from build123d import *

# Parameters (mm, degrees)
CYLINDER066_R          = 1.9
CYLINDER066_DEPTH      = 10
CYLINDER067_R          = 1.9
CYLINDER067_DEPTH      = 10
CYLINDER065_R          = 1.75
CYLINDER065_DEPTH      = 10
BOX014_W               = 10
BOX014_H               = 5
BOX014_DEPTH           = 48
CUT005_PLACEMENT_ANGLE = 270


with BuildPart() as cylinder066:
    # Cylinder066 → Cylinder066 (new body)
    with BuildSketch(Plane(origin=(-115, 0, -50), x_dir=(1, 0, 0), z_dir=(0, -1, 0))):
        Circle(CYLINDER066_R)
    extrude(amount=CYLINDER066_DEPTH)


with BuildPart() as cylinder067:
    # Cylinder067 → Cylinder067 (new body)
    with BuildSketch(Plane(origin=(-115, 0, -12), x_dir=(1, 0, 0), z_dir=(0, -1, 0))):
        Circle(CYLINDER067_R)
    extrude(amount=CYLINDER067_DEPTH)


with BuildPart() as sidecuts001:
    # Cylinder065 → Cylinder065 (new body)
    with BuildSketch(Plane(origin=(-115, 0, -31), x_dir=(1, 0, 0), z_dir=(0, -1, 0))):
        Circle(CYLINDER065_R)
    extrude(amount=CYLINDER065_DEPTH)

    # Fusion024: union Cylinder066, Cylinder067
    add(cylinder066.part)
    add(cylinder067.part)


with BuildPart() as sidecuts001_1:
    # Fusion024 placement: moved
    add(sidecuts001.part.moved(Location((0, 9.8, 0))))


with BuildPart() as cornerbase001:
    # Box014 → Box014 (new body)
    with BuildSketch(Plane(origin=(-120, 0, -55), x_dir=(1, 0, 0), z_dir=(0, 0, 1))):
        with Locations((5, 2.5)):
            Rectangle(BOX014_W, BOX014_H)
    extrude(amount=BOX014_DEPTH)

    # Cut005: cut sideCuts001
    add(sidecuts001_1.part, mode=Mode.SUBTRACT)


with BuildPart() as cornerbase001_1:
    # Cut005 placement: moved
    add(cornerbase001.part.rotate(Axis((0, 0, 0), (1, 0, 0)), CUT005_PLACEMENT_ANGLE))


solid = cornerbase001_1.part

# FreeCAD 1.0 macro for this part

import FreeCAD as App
import Part
import Sketcher

V = App.Vector

doc = App.newDocument("Part")
body = doc.addObject("PartDesign::Body", "Body")

# Sketch on XZ plane
sketch1 = body.newObject("Sketcher::SketchObject", "Sketch")
sketch1.AttachmentSupport = (doc.getObject("XZ_Plane"), [""])
sketch1.MapMode = "FlatFace"
sketch1.addGeometry(Part.Circle(V(-115, -50, 0), V(0, 0, 1), 1.9), False)
sketch1.addConstraint([
    Sketcher.Constraint("Diameter", 0, 3.8),
    Sketcher.Constraint("DistanceX", 0, 3, -1, 1, 115.0),
    Sketcher.Constraint("DistanceY", 0, 3, -1, 1, 50.0),
])
pad1 = body.newObject("PartDesign::Pad", "Pad")
pad1.Profile = sketch1
pad1.Length = 10
body2 = doc.addObject("PartDesign::Body", "Body001")

# Sketch on XZ plane
sketch2 = body2.newObject("Sketcher::SketchObject", "Sketch001")
sketch2.AttachmentSupport = (doc.getObject("XZ_Plane001"), [""])
sketch2.MapMode = "FlatFace"
sketch2.addGeometry(Part.Circle(V(-115, -12, 0), V(0, 0, 1), 1.9), False)
sketch2.addConstraint([
    Sketcher.Constraint("Diameter", 0, 3.8),
    Sketcher.Constraint("DistanceX", 0, 3, -1, 1, 115.0),
    Sketcher.Constraint("DistanceY", 0, 3, -1, 1, 12.0),
])
pad2 = body2.newObject("PartDesign::Pad", "Pad001")
pad2.Profile = sketch2
pad2.Length = 10
body3 = doc.addObject("PartDesign::Body", "Body002")
body3.AllowCompound = True

# Sketch on XZ plane
sketch3 = body3.newObject("Sketcher::SketchObject", "Sketch002")
sketch3.AttachmentSupport = (doc.getObject("XZ_Plane002"), [""])
sketch3.MapMode = "FlatFace"
sketch3.addGeometry(Part.Circle(V(-115, -31, 0), V(0, 0, 1), 1.8), False)
sketch3.addConstraint([
    Sketcher.Constraint("Diameter", 0, 3.5),
    Sketcher.Constraint("DistanceX", 0, 3, -1, 1, 115.0),
    Sketcher.Constraint("DistanceY", 0, 3, -1, 1, 31.0),
])
pad3 = body3.newObject("PartDesign::Pad", "Pad002")
pad3.Profile = sketch3
pad3.Length = 10
doc.recompute()

boolean = body3.newObject("PartDesign::Boolean", "Boolean")
boolean.Type = "Fuse"
boolean.addObjects([body])
doc.recompute()

boolean2 = body3.newObject("PartDesign::Boolean", "Boolean001")
boolean2.Type = "Fuse"
boolean2.addObjects([body2])
body4 = doc.addObject("PartDesign::Body", "Body003")
body4.AllowCompound = True
doc.recompute()

body3.Placement = App.Placement(V(0, 9.8, 0), App.Rotation(V(0, 0, 1), 0))
boolean3 = body4.newObject("PartDesign::Boolean", "Boolean002")
boolean3.Type = "Fuse"
boolean3.addObjects([body3])
body5 = doc.addObject("PartDesign::Body", "Body004")

# Sketch on XY plane
sketch4 = body5.newObject("Sketcher::SketchObject", "Sketch003")
sketch4.AttachmentSupport = (doc.getObject("XY_Plane004"), [""])
sketch4.MapMode = "FlatFace"
sketch4.AttachmentOffset = App.Placement(V(0, 0, -55), App.Rotation())
sketch4.addGeometry([
    Part.LineSegment(V(-120, 5, 0), V(-120, 0, 0)),
    Part.LineSegment(V(-120, 0, 0), V(-110, 0, 0)),
    Part.LineSegment(V(-110, 0, 0), V(-110, 5, 0)),
    Part.LineSegment(V(-110, 5, 0), V(-120, 5, 0)),
], False)
sketch4.addConstraint([
    Sketcher.Constraint("Coincident", 0, 2, 1, 1),
    Sketcher.Constraint("Coincident", 1, 2, 2, 1),
    Sketcher.Constraint("Coincident", 2, 2, 3, 1),
    Sketcher.Constraint("Coincident", 3, 2, 0, 1),
    Sketcher.Constraint("Vertical", 0),
    Sketcher.Constraint("Horizontal", 1),
    Sketcher.Constraint("Vertical", 2),
    Sketcher.Constraint("Horizontal", 3),
    Sketcher.Constraint("PointOnObject", 0, 2, -1),
    Sketcher.Constraint("DistanceX", 1, 1, 1, 2, 10.0),
    Sketcher.Constraint("DistanceY", 0, 2, 0, 1, 5.0),
    Sketcher.Constraint("DistanceX", 0, 2, -1, 1, 120.0),
])
pad4 = body5.newObject("PartDesign::Pad", "Pad003")
pad4.Profile = sketch4
pad4.Length = 48
doc.recompute()

boolean4 = body5.newObject("PartDesign::Boolean", "Boolean003")
boolean4.Type = "Cut"
boolean4.addObjects([body4])
body6 = doc.addObject("PartDesign::Body", "Body005")
doc.recompute()

body5.Placement = App.Placement(V(0, 0, 0), App.Rotation(V(1, 0, 0), 270))
boolean5 = body6.newObject("PartDesign::Boolean", "Boolean004")
boolean5.Type = "Fuse"
boolean5.addObjects([body5])

doc.recompute()
